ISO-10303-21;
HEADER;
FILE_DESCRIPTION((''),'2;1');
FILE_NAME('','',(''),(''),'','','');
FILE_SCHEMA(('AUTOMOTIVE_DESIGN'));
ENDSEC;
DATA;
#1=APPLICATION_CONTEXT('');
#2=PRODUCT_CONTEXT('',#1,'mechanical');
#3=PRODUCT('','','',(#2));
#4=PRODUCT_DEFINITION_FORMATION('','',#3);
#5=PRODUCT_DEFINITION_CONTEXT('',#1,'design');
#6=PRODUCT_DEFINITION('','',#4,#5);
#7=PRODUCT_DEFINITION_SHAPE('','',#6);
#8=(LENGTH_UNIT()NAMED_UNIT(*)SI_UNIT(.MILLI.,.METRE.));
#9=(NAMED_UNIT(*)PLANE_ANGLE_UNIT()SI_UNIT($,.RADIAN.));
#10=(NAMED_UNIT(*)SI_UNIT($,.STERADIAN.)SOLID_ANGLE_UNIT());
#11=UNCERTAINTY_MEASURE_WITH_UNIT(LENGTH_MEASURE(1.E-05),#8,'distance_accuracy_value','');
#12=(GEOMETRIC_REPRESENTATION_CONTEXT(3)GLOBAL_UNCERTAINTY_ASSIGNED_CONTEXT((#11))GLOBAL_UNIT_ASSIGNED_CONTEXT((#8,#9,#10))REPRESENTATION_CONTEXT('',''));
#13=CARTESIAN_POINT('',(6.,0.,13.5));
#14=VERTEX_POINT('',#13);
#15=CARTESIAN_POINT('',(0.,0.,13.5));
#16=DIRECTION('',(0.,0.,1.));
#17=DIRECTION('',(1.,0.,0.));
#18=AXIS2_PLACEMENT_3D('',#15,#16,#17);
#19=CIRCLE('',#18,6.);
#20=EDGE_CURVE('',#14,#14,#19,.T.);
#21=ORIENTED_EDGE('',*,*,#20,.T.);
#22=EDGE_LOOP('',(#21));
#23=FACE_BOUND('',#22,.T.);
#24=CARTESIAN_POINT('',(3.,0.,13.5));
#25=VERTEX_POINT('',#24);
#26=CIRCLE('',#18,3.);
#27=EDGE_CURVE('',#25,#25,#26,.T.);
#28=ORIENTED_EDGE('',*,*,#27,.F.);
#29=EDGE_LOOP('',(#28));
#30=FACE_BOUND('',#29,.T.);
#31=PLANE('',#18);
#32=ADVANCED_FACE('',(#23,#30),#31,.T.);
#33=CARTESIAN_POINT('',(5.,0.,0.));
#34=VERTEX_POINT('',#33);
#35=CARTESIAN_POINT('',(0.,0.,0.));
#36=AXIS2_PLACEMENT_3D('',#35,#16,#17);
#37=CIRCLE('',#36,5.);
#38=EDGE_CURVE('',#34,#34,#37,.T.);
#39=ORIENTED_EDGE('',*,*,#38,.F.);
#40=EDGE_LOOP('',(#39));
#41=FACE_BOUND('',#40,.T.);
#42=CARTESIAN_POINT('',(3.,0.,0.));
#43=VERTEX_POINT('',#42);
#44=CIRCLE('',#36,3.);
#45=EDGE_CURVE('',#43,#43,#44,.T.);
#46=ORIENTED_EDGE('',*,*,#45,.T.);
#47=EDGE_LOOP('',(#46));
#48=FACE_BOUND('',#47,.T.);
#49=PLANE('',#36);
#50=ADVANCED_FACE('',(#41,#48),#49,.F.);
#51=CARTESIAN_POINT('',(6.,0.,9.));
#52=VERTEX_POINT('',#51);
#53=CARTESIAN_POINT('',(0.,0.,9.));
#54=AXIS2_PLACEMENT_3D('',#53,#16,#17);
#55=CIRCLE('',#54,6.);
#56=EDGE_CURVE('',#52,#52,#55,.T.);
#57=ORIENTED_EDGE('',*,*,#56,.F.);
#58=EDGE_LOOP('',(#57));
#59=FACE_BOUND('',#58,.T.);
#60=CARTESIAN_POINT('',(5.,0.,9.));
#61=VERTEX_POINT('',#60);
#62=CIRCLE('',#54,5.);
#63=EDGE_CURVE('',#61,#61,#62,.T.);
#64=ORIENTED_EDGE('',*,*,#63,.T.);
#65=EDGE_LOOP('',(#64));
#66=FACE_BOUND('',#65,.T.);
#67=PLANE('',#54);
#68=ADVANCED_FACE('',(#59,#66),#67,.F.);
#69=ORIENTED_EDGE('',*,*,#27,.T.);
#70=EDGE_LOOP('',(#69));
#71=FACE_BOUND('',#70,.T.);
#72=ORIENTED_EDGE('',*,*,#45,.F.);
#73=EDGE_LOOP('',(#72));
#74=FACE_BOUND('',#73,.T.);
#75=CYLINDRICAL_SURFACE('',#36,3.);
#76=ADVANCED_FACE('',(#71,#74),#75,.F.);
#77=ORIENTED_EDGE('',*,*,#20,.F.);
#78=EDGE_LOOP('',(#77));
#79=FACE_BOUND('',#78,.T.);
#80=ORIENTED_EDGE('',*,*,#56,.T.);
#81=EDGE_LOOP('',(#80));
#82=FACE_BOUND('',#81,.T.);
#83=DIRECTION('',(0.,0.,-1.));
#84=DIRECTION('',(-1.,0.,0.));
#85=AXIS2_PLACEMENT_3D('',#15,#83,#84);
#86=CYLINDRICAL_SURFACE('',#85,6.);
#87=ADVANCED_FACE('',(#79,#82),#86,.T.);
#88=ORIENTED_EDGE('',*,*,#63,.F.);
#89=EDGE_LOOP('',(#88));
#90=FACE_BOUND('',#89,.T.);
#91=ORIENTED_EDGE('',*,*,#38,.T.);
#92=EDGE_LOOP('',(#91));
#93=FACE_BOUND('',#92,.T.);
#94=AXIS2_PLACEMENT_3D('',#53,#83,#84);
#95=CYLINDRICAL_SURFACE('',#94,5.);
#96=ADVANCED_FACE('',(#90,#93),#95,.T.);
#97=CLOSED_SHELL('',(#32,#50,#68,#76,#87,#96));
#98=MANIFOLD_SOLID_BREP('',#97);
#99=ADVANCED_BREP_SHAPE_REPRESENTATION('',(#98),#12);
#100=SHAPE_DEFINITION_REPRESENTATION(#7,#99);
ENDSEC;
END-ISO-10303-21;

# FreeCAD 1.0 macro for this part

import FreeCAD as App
import Part
import Sketcher
from FreeCAD import Vector
Q = App.Units.Quantity

doc = App.newDocument("Part")
params = doc.addObject("Spreadsheet::Sheet", "Params")
for row, (alias, value) in enumerate([
    ("sketch1_diameter", "10 mm"),
    ("pad1_length", "9 mm"),
    ("sketch2_diameter", "12 mm"),
    ("pad2_length", "4.5 mm"),
    ("sketch3_diameter", "6 mm"),
], start=1):
    params.set(f"A{row}", alias)
    params.set(f"B{row}", "=" + value)
    params.setAlias(f"B{row}", alias)

body = doc.addObject("PartDesign::Body", "Body")

# Sketch on XY plane
sketch1 = doc.addObject("Sketcher::SketchObject", "Sketch")
body.addObject(sketch1)
sketch1.AttachmentSupport = (doc.XY_Plane, [""])
sketch1.MapMode = "FlatFace"
sketch1.addGeometry(Part.Circle(Vector(0, 0, 0), Vector(0, 0, 1), 5), False)
sketch1.addConstraint([
    Sketcher.Constraint("Coincident", 0, 3, -1, 1),
    Sketcher.Constraint("Diameter", 0, Q("10 mm")),
])
sketch1.setExpression("Constraints[1]", "Params.sketch1_diameter")
pad1 = doc.addObject("PartDesign::Pad", "Pad")
body.addObject(pad1)
pad1.Profile = sketch1
pad1.setExpression("Length", "Params.pad1_length")

# Sketch on XY plane
sketch2 = doc.addObject("Sketcher::SketchObject", "Sketch001")
body.addObject(sketch2)
sketch2.AttachmentSupport = (doc.XY_Plane, [""])
sketch2.MapMode = "FlatFace"
sketch2.AttachmentOffset = App.Placement(Vector(0, 0, 9), App.Rotation())
sketch2.addGeometry(Part.Circle(Vector(0, 0, 0), Vector(0, 0, 1), 6), False)
sketch2.addConstraint([
    Sketcher.Constraint("Coincident", 0, 3, -1, 1),
    Sketcher.Constraint("Diameter", 0, Q("12 mm")),
])
sketch2.setExpression("Constraints[1]", "Params.sketch2_diameter")
pad2 = doc.addObject("PartDesign::Pad", "Pad001")
body.addObject(pad2)
pad2.Profile = sketch2
pad2.setExpression("Length", "Params.pad2_length")

# Sketch on XY plane
sketch3 = doc.addObject("Sketcher::SketchObject", "Sketch002")
body.addObject(sketch3)
sketch3.AttachmentSupport = (doc.XY_Plane, [""])
sketch3.MapMode = "FlatFace"
sketch3.AttachmentOffset = App.Placement(Vector(0, 0, 13.5), App.Rotation())
sketch3.addGeometry(Part.Circle(Vector(0, 0, 0), Vector(0, 0, 1), 3), False)
sketch3.addConstraint([
    Sketcher.Constraint("Coincident", 0, 3, -1, 1),
    Sketcher.Constraint("Diameter", 0, Q("6 mm")),
])
sketch3.setExpression("Constraints[1]", "Params.sketch3_diameter")
pocket1 = doc.addObject("PartDesign::Pocket", "Pocket")
body.addObject(pocket1)
pocket1.Profile = sketch3
pocket1.Type = "ThroughAll"

doc.recompute()
